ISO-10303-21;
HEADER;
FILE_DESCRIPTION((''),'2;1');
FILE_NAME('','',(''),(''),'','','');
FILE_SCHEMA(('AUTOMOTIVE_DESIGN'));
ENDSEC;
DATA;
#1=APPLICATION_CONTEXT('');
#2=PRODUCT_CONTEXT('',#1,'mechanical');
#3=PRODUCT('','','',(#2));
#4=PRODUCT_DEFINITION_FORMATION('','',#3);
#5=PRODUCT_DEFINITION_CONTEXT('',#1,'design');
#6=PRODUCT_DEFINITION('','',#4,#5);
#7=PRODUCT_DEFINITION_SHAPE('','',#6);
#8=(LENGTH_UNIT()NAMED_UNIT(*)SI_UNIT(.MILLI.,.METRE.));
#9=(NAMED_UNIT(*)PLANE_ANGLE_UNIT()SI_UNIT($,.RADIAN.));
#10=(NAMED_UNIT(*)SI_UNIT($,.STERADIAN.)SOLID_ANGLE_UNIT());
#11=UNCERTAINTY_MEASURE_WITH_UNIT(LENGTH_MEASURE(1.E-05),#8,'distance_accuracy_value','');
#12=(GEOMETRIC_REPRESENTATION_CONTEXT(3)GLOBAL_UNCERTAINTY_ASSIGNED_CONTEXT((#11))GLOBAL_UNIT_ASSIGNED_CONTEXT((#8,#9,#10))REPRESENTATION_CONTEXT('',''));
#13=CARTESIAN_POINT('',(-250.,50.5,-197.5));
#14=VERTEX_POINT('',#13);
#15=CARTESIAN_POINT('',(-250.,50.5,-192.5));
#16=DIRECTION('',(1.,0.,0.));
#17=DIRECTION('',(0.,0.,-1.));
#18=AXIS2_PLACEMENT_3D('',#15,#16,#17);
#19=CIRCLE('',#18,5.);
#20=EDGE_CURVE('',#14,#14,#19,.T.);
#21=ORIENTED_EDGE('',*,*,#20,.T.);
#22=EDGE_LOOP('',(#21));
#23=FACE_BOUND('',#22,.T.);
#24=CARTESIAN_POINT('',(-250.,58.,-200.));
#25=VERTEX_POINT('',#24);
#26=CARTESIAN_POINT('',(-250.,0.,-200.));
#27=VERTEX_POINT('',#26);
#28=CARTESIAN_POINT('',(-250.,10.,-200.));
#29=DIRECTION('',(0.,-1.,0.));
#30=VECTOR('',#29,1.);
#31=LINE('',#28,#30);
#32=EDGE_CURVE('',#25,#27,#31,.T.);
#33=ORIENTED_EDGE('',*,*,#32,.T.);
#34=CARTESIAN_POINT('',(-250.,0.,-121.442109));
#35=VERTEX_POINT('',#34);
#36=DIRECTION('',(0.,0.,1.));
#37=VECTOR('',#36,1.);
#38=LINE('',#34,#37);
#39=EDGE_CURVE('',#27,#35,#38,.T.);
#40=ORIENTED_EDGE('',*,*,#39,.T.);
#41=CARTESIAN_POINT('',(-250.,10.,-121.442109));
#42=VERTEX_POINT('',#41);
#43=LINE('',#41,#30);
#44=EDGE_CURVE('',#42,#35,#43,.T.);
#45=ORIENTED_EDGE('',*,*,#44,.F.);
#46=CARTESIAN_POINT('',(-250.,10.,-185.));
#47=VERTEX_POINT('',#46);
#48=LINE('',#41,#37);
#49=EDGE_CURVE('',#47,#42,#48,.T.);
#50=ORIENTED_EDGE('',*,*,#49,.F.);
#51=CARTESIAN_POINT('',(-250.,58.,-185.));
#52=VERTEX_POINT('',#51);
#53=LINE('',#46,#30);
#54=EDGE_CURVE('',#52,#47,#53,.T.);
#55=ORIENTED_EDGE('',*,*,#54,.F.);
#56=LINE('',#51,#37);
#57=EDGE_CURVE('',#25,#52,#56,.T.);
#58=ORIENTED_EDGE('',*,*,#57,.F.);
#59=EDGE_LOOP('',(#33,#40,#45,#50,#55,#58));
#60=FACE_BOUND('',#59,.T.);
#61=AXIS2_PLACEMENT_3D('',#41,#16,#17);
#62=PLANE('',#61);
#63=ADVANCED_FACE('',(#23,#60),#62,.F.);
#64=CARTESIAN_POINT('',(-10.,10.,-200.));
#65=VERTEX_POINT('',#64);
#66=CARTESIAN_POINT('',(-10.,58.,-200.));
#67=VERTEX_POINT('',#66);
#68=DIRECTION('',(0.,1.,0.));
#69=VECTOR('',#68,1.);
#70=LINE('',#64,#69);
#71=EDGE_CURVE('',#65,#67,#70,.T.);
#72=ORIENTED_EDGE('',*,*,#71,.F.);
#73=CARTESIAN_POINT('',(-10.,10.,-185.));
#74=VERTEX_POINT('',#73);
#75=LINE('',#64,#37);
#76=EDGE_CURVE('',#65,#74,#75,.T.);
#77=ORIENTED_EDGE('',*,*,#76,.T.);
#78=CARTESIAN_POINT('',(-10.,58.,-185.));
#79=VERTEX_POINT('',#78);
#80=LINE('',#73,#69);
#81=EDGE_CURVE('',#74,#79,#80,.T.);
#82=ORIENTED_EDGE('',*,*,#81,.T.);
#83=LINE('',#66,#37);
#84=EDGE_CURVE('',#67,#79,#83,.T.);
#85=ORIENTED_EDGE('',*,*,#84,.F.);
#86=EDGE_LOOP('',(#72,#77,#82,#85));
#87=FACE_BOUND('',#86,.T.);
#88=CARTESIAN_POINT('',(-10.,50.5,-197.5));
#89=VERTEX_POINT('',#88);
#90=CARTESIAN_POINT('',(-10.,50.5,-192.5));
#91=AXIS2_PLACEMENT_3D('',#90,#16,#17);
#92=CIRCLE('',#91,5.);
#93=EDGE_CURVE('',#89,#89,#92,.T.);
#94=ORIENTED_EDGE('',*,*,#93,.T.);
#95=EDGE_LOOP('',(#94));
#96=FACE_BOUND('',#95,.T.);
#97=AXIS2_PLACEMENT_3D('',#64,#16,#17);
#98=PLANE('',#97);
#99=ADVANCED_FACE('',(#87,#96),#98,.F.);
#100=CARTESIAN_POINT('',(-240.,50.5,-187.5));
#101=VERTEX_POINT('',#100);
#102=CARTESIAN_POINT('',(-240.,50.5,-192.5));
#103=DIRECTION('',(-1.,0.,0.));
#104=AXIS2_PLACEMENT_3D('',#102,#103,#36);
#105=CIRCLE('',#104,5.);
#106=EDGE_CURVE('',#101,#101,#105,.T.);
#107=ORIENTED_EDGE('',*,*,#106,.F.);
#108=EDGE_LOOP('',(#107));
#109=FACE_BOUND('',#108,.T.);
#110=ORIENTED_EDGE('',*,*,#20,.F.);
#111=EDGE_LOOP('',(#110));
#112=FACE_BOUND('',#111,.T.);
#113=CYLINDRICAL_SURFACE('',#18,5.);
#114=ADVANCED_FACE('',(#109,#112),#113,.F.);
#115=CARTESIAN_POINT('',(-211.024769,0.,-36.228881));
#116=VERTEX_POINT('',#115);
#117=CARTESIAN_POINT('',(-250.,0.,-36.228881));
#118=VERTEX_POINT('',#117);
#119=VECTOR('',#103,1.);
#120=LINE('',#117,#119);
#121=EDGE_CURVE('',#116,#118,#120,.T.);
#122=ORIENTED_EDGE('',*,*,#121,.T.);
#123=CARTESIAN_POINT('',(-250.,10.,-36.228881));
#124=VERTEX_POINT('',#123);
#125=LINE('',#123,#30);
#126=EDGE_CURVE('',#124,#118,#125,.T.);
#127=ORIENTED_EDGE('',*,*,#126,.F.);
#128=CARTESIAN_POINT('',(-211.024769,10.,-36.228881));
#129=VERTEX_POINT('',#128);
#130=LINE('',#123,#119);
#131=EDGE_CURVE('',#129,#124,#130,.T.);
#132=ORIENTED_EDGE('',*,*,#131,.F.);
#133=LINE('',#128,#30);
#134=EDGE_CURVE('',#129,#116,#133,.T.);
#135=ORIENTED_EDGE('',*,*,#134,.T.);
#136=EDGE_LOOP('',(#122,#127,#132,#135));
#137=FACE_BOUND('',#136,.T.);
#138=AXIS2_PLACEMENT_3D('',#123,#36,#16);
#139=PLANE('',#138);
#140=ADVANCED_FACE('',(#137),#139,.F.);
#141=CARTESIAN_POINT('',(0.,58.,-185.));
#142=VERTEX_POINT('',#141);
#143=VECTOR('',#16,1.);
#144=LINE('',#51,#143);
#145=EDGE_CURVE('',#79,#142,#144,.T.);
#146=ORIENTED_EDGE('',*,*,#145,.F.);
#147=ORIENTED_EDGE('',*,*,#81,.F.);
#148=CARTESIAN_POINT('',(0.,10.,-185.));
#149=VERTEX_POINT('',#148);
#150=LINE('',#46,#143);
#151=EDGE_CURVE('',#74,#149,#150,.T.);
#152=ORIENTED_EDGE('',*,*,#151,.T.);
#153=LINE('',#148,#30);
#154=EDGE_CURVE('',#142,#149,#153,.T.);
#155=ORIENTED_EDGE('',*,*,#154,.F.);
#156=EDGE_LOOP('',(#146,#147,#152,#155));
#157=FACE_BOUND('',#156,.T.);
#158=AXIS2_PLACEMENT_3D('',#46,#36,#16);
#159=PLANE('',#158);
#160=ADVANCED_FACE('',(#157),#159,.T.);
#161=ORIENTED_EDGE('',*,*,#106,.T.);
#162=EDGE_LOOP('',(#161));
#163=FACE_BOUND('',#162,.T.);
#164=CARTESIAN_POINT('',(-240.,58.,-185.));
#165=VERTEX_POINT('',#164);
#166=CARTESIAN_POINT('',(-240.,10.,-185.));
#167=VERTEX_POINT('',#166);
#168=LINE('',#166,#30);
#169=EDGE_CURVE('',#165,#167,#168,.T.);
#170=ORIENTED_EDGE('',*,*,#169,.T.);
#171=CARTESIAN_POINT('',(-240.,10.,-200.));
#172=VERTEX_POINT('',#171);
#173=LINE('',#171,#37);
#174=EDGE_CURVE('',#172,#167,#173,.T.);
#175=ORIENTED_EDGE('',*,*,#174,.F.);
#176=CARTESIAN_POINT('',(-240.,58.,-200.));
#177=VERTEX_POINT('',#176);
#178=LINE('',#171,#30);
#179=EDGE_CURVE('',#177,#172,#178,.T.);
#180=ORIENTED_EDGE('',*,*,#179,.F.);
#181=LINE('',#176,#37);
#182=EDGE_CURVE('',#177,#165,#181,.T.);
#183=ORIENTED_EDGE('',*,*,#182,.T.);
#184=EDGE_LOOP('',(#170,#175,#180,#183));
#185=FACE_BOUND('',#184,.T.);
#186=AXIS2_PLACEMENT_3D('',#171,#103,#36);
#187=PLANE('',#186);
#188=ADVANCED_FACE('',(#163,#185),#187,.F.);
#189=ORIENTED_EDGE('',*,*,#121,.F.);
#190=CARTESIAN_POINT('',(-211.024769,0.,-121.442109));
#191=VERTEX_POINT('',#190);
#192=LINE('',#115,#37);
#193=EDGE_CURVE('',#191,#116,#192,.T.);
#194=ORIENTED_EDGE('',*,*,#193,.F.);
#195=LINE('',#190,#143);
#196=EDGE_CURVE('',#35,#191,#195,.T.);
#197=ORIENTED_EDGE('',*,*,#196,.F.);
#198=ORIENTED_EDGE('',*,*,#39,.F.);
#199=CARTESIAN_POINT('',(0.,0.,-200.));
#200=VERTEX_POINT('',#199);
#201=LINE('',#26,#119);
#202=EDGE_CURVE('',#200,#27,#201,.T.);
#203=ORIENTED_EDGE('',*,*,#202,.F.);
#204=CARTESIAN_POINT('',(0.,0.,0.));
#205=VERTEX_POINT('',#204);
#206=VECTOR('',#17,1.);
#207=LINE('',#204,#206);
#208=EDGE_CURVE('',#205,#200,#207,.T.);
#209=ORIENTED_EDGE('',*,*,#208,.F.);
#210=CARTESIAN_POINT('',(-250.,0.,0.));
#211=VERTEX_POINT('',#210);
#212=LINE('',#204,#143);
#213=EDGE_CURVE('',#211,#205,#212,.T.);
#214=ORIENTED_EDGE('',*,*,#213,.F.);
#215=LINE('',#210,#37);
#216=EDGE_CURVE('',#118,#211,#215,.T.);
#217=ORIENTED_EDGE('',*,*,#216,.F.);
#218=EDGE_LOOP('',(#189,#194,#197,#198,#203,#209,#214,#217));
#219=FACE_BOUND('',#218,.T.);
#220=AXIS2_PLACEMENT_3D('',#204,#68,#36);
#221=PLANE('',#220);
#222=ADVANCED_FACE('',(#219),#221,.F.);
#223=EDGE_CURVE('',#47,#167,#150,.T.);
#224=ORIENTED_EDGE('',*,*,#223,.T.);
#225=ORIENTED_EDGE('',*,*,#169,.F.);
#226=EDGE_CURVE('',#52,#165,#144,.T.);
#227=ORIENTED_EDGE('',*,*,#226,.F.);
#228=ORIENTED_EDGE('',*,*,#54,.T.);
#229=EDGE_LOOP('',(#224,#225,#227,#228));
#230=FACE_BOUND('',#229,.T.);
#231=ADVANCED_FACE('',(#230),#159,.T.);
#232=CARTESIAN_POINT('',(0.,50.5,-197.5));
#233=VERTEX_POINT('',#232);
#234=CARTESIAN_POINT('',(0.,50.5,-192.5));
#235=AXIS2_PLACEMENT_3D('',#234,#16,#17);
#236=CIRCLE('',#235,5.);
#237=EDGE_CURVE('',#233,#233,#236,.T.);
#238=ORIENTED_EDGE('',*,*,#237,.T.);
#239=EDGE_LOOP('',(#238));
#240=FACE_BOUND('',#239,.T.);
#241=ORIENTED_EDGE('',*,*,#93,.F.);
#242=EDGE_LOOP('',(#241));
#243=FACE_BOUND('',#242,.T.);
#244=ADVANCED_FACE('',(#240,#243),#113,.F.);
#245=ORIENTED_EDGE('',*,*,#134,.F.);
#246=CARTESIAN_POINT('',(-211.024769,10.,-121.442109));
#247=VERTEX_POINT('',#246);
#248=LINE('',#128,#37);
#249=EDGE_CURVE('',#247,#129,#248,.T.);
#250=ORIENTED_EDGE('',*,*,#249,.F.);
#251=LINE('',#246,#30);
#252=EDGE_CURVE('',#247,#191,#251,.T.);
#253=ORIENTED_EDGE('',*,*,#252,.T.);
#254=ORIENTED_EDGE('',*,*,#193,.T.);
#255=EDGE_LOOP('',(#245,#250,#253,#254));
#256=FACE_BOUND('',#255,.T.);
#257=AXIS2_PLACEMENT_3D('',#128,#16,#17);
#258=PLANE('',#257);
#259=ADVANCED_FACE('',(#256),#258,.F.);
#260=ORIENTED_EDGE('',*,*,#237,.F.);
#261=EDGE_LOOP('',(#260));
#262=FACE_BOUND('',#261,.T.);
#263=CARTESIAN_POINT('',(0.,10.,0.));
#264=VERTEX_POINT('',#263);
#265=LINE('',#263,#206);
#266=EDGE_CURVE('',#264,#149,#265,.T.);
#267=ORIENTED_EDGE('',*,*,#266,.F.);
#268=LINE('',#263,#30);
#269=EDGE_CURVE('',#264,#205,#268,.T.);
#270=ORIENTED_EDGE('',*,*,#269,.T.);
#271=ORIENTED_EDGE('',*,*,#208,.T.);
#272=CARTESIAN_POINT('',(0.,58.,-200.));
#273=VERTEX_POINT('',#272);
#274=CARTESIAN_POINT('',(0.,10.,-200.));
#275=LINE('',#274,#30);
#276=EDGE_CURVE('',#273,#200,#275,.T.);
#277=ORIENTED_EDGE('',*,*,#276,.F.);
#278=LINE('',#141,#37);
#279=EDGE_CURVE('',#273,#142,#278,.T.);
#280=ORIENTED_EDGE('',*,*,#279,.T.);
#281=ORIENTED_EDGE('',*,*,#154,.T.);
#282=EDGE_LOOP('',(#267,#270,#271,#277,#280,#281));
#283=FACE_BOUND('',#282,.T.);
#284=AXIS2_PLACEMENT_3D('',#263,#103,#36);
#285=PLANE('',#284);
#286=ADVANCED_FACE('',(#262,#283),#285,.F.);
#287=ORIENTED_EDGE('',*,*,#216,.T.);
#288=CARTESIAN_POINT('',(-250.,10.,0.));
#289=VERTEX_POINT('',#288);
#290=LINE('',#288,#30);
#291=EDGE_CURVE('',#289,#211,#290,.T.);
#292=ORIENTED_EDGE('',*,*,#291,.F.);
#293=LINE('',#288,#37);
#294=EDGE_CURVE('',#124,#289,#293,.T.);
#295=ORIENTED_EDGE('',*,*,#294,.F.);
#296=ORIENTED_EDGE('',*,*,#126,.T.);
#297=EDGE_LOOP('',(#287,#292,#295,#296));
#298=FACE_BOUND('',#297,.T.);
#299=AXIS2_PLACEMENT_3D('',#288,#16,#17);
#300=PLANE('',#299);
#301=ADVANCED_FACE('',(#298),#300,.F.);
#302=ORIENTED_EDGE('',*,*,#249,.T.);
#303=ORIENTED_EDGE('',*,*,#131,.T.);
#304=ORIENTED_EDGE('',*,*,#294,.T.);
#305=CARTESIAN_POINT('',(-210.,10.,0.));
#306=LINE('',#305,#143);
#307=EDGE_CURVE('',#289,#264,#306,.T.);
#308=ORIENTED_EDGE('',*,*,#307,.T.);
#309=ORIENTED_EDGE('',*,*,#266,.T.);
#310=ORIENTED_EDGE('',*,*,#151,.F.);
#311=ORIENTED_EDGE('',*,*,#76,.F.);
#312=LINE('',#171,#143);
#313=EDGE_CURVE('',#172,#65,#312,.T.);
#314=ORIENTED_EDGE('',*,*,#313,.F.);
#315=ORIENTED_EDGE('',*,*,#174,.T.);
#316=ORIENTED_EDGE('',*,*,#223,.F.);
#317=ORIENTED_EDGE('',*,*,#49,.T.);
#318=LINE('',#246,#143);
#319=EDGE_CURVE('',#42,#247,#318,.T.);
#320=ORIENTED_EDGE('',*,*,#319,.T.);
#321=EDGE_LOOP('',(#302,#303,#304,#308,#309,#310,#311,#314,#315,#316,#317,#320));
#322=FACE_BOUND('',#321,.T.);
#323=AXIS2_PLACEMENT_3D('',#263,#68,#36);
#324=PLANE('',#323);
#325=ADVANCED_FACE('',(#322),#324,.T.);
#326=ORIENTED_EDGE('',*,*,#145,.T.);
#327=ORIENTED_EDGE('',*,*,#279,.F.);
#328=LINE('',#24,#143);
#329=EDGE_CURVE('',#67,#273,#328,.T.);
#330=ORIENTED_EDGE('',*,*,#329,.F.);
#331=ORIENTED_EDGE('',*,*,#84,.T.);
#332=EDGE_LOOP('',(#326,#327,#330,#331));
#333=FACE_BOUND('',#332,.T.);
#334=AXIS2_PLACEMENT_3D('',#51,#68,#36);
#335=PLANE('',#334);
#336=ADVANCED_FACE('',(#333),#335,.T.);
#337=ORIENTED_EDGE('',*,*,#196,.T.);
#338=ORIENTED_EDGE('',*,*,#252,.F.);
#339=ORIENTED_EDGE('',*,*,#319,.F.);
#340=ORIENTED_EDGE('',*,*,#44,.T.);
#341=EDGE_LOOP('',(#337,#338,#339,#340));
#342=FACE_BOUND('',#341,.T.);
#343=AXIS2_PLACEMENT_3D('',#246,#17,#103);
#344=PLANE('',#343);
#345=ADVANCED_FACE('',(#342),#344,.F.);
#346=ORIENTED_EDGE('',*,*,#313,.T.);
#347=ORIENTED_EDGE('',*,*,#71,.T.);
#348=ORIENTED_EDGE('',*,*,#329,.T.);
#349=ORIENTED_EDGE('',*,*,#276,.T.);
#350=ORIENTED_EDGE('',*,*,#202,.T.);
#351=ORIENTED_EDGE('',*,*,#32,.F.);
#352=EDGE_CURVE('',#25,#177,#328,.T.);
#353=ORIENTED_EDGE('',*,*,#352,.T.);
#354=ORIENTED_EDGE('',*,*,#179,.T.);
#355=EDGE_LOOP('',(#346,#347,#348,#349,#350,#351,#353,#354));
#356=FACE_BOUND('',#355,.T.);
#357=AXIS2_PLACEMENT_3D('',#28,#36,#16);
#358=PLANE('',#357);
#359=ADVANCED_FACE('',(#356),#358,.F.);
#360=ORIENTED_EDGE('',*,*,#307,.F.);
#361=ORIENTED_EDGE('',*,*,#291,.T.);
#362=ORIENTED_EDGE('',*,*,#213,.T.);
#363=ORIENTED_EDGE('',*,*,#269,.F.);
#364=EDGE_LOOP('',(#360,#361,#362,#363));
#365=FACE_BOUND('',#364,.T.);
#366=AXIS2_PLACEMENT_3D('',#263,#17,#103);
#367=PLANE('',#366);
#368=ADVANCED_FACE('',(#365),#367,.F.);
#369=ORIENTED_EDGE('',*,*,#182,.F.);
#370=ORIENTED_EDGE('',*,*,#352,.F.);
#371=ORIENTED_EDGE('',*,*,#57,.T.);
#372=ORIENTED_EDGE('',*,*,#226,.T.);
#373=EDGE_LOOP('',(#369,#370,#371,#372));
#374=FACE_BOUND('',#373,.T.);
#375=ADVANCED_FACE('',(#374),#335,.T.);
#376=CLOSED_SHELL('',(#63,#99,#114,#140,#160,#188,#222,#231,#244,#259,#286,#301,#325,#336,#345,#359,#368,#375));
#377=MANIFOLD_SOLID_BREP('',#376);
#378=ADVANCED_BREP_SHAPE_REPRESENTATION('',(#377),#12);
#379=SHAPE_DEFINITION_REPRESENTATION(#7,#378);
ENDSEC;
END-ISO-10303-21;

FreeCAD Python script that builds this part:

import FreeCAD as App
import Part
import Sketcher
Q = App.Units.Quantity


def add_polygon(sketch, points):
    """Adds a closed chain of lines whose ends are joined by coincident constraints."""
    first, n = sketch.GeometryCount, len(points)
    for a, b in zip(points, points[1:] + points[:1]):
        sketch.addGeometry(Part.LineSegment(App.Vector(*a, 0), App.Vector(*b, 0)), False)
    for i in range(n):
        sketch.addConstraint(Sketcher.Constraint("Coincident", first + i, 2, first + (i + 1) % n, 1))

doc = App.newDocument("Part")
body = doc.addObject("PartDesign::Body", "Body")

# Sketch on XZ plane
sketch1 = body.newObject("Sketcher::SketchObject", "Sketch")
sketch1.AttachmentSupport = (doc.getObject("XZ_Plane"), [""])
sketch1.MapMode = "FlatFace"
add_polygon(sketch1, [(-250, 0), (0, 0), (0, -200), (-250, -200), (-250, -121), (-211, -121), (-211, -36), (-250, -36)])  # lines 0-7
sketch1.addConstraint([
    Sketcher.Constraint("Horizontal", 0),
    Sketcher.Constraint("Vertical", 1),
    Sketcher.Constraint("Horizontal", 2),
    Sketcher.Constraint("Vertical", 3),
    Sketcher.Constraint("Horizontal", 4),
    Sketcher.Constraint("Vertical", 5),
    Sketcher.Constraint("Horizontal", 6),
    Sketcher.Constraint("Vertical", 7),
    Sketcher.Constraint("Coincident", 0, 2, -1, 1),
    Sketcher.Constraint("Vertical", 3, 2, 6, 2),
    Sketcher.Constraint("DistanceX", 0, 1, 0, 2, Q("250 mm")),
    Sketcher.Constraint("DistanceY", 1, 2, 1, 1, Q("200 mm")),
    Sketcher.Constraint("DistanceX", 4, 1, 4, 2, Q("38.975231 mm")),
    Sketcher.Constraint("DistanceY", 3, 1, 3, 2, Q("78.557891 mm")),
    Sketcher.Constraint("DistanceY", 7, 1, 7, 2, Q("36.228881 mm")),
])
pad1 = body.newObject("PartDesign::Pad", "Pad")
pad1.Profile = sketch1
pad1.Length = 10
pad1.Reversed = True

# Sketch on YZ plane
sketch2 = body.newObject("Sketcher::SketchObject", "Sketch001")
sketch2.AttachmentSupport = (doc.getObject("YZ_Plane"), [""])
sketch2.MapMode = "FlatFace"
add_polygon(sketch2, [(58, -185), (10, -185), (10, -200), (58, -200)])  # lines 0-3
sketch2.addConstraint([
    Sketcher.Constraint("Horizontal", 0),
    Sketcher.Constraint("Vertical", 1),
    Sketcher.Constraint("Horizontal", 2),
    Sketcher.Constraint("Vertical", 3),
    Sketcher.Constraint("DistanceX", 0, 2, 0, 1, Q("48 mm")),
    Sketcher.Constraint("DistanceY", 1, 2, 1, 1, Q("15 mm")),
    Sketcher.Constraint("DistanceX", -1, 1, 0, 2, Q("10 mm")),
    Sketcher.Constraint("DistanceY", 0, 2, -1, 1, Q("185 mm")),
])
pad2 = body.newObject("PartDesign::Pad", "Pad001")
pad2.Profile = sketch2
pad2.Length = 250
pad2.Reversed = True

# Sketch on XY plane
sketch3 = body.newObject("Sketcher::SketchObject", "Sketch002")
sketch3.AttachmentSupport = (doc.getObject("XY_Plane"), [""])
sketch3.MapMode = "FlatFace"
sketch3.AttachmentOffset = App.Placement(App.Vector(0, 0, -185), App.Rotation())
add_polygon(sketch3, [(-240, 58), (-240, 10), (-10, 10), (-10, 58)])  # lines 0-3
sketch3.addConstraint([
    Sketcher.Constraint("Vertical", 0),
    Sketcher.Constraint("Horizontal", 1),
    Sketcher.Constraint("Vertical", 2),
    Sketcher.Constraint("Horizontal", 3),
    Sketcher.Constraint("DistanceX", 1, 1, 1, 2, Q("230 mm")),
    Sketcher.Constraint("DistanceY", 0, 2, 0, 1, Q("48 mm")),
    Sketcher.Constraint("DistanceX", 0, 2, -1, 1, Q("240 mm")),
    Sketcher.Constraint("DistanceY", -1, 1, 0, 2, Q("10 mm")),
])
pocket1 = body.newObject("PartDesign::Pocket", "Pocket")
pocket1.Profile = sketch3
pocket1.Length = 15

# Sketch on YZ plane
sketch4 = body.newObject("Sketcher::SketchObject", "Sketch003")
sketch4.AttachmentSupport = (doc.getObject("YZ_Plane"), [""])
sketch4.MapMode = "FlatFace"
sketch4.addGeometry(Part.Circle(App.Vector(50, -192, 0), App.Vector(0, 0, 1), 5), False)
sketch4.addConstraint([
    Sketcher.Constraint("Diameter", 0, Q("10 mm")),
    Sketcher.Constraint("DistanceX", -1, 1, 0, 3, Q("50.5 mm")),
    Sketcher.Constraint("DistanceY", 0, 3, -1, 1, Q("192.5 mm")),
])
pocket2 = body.newObject("PartDesign::Pocket", "Pocket001")
pocket2.Profile = sketch4
pocket2.Length = 250

doc.recompute()
